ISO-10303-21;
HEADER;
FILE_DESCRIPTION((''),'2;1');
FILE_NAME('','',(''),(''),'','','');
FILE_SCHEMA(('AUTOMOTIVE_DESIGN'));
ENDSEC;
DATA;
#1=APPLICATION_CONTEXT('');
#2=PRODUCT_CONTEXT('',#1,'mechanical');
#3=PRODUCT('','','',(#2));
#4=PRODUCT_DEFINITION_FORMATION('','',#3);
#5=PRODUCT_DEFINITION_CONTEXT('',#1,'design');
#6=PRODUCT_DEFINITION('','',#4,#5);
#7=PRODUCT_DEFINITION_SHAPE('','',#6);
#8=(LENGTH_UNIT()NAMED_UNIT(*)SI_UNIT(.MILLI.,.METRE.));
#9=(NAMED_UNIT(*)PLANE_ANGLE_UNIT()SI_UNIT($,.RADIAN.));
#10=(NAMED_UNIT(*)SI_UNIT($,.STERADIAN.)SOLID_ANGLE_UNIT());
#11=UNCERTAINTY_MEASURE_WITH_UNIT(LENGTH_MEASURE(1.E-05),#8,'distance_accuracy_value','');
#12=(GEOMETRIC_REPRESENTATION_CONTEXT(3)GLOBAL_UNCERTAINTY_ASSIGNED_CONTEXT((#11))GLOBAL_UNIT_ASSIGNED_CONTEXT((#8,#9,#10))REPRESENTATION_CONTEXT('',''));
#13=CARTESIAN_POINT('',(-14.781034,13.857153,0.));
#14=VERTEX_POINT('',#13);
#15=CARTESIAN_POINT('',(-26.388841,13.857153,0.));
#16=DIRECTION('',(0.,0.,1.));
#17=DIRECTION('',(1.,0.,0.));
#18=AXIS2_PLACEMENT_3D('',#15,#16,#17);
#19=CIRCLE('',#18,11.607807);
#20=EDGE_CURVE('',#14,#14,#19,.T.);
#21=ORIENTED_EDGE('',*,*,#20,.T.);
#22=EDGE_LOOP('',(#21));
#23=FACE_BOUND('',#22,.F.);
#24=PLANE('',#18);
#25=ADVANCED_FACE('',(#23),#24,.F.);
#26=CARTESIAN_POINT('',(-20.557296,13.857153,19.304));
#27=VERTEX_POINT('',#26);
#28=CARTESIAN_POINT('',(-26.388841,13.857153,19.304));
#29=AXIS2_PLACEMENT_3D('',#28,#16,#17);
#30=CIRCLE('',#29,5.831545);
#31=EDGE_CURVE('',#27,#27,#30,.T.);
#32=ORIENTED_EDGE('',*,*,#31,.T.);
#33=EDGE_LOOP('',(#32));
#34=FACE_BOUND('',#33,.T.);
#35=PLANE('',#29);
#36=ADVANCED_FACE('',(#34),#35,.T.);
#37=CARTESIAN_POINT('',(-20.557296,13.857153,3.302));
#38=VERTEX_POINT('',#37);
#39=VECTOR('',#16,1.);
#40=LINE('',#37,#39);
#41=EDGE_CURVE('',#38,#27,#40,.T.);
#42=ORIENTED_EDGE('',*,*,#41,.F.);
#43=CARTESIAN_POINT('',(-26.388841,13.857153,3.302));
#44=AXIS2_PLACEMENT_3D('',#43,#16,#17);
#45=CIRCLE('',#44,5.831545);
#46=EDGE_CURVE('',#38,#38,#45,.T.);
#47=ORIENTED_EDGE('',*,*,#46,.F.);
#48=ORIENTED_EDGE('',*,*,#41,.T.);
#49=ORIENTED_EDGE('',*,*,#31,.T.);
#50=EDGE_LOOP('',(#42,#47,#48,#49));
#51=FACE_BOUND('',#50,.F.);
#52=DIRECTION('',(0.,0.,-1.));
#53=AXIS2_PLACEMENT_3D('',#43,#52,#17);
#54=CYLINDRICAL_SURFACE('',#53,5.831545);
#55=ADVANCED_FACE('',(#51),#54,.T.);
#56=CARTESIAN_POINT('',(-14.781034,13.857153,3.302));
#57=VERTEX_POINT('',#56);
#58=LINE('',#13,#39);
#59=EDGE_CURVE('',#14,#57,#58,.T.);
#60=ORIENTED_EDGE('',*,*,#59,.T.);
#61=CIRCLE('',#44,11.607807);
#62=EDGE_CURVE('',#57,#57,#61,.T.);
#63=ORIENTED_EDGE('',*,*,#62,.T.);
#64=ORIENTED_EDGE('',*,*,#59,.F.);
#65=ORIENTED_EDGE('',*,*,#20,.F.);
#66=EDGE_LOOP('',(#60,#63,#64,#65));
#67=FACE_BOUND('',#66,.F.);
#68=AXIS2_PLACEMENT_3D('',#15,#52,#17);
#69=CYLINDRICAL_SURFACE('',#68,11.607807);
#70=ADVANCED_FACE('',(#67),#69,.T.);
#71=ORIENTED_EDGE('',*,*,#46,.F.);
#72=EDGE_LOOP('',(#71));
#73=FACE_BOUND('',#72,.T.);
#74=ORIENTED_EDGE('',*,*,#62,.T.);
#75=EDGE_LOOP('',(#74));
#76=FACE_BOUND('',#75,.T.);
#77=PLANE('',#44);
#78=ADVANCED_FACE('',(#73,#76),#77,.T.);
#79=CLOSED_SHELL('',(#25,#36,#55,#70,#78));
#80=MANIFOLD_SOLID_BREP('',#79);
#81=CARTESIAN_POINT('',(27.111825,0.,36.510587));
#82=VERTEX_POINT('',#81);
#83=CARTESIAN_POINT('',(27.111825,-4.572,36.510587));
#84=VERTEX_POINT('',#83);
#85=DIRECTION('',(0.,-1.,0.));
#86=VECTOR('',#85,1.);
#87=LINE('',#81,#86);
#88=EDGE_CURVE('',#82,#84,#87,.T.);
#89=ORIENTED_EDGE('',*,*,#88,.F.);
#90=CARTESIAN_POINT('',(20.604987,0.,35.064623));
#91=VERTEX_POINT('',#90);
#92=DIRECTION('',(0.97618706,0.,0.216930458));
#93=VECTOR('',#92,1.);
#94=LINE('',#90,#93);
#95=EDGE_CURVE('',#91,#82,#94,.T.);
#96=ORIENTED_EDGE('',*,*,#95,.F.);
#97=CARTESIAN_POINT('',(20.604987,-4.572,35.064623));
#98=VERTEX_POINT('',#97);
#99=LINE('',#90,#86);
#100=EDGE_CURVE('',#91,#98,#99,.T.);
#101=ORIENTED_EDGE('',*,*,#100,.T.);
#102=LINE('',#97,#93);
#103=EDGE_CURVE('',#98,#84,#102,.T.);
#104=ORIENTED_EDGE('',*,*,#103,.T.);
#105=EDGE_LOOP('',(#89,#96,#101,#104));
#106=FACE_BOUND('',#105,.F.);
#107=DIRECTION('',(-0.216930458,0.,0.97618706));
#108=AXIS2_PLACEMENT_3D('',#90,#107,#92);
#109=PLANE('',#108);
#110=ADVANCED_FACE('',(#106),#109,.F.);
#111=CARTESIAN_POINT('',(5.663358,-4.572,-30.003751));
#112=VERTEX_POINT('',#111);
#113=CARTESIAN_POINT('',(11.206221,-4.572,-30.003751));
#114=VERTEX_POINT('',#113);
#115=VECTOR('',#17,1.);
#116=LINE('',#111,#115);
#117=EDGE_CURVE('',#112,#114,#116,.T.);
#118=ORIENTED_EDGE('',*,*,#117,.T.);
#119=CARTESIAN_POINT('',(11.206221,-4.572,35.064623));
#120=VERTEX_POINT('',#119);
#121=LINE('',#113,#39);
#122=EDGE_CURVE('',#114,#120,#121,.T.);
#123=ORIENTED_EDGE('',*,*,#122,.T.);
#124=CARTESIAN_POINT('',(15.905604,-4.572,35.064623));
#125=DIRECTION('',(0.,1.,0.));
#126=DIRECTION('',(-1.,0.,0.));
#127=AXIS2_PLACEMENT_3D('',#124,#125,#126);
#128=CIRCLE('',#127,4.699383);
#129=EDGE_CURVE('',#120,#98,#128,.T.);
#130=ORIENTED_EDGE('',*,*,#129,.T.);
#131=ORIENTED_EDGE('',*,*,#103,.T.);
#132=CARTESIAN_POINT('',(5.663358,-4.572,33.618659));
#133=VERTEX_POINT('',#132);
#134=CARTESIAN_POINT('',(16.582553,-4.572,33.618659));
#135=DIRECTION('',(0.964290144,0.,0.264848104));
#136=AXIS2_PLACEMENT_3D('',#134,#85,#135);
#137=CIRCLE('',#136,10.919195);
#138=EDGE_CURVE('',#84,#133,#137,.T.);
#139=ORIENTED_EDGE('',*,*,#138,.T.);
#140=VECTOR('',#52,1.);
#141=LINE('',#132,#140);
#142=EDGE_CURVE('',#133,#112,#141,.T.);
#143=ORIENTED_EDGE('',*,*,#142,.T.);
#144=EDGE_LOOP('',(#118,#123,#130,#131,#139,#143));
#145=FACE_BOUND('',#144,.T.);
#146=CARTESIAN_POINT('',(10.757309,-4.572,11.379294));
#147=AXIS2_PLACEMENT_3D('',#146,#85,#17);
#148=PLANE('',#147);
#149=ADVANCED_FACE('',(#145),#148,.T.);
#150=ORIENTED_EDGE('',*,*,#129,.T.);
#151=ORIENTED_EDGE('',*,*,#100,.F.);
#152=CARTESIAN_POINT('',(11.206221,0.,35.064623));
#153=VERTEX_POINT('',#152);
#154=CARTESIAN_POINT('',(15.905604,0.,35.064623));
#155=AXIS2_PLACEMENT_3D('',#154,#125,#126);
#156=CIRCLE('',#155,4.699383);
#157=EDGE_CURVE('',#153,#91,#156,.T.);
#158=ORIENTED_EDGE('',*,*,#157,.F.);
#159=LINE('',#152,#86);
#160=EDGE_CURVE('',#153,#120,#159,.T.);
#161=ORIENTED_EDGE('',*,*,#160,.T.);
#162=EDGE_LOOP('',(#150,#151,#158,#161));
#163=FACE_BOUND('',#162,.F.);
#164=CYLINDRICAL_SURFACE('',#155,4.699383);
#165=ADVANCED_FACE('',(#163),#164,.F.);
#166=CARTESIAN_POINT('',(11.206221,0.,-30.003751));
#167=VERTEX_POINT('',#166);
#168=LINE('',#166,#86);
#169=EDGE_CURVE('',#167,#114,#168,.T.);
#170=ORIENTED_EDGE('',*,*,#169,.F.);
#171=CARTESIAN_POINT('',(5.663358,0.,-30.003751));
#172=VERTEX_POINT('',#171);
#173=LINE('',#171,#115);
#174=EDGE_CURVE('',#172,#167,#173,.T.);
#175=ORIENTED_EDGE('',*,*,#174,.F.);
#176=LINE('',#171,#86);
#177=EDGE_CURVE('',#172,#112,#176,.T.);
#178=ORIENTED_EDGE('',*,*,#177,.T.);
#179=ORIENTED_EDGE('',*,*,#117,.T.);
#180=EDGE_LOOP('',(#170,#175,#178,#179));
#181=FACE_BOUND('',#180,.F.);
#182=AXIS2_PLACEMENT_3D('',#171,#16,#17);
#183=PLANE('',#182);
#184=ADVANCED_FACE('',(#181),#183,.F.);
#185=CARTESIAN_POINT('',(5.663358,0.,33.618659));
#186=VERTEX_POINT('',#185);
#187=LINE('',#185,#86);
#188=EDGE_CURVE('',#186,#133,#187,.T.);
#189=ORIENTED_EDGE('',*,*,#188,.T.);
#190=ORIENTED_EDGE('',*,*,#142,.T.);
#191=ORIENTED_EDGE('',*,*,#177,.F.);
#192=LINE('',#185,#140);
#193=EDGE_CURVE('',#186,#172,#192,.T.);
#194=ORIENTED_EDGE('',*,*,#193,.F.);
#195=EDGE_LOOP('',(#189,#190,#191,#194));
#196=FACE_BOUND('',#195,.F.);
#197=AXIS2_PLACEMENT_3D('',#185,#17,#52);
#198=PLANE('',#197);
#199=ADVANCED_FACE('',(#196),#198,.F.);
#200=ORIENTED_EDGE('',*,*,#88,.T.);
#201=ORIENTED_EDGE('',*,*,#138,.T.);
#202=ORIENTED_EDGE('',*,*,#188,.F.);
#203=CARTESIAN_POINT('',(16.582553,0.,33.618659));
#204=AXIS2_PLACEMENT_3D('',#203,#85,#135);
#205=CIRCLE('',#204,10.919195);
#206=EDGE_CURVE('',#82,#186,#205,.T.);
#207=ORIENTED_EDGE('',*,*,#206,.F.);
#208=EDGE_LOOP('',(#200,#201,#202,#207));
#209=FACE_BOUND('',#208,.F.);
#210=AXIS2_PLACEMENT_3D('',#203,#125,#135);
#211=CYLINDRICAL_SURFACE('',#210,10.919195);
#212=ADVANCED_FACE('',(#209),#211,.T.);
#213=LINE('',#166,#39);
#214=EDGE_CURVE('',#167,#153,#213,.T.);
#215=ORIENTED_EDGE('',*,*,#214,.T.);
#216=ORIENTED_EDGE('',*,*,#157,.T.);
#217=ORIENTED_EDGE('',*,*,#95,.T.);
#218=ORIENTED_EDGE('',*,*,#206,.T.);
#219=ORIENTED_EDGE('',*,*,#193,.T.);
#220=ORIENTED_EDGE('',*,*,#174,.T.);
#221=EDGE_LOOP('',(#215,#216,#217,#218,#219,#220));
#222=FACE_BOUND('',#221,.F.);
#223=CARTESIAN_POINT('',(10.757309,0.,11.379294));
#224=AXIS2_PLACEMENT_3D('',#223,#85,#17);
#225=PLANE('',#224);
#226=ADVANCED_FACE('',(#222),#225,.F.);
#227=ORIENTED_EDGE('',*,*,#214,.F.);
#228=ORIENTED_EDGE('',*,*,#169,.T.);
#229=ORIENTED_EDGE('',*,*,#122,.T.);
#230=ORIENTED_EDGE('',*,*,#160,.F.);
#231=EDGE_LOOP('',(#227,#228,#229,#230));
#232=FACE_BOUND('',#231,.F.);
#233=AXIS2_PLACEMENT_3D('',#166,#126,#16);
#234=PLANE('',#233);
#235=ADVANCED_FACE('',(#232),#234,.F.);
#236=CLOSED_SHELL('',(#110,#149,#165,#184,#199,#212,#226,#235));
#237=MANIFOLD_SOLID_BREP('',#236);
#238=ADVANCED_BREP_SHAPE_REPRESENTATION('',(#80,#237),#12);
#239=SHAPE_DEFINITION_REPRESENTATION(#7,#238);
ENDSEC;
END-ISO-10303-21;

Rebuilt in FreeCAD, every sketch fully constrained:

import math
import FreeCAD as App
import Part
import Sketcher

V = App.Vector
Q = App.Units.Quantity

doc = App.newDocument("Part")
body = doc.addObject("PartDesign::Body", "Body")

# Sketch on XZ plane
sketch1 = body.newObject("Sketcher::SketchObject", "Sketch")
sketch1.AttachmentSupport = (doc.getObject("XZ_Plane"), [""])
sketch1.MapMode = "FlatFace"
sketch1.addGeometry([
    Part.LineSegment(V(5.7, -30, 0), V(11.2, -30, 0)),  # 0
    Part.LineSegment(V(11.2, -30, 0), V(11.2, 35.1, 0)),  # 1
    Part.ArcOfCircle(Part.Circle(V(15.9, 35.1, 0), V(0, 0, 1), 4.7), math.radians(0), math.radians(180)),  # 2
    Part.LineSegment(V(20.6, 35.1, 0), V(27.1, 36.5, 0)),  # 3
    Part.ArcOfCircle(Part.Circle(V(16.6, 33.6, 0), V(0, 0, 1), 10.9), math.radians(15), math.radians(180)),  # 4
    Part.LineSegment(V(5.7, 33.6, 0), V(5.7, -30, 0)),  # 5
], False)
sketch1.addConstraint([
    Sketcher.Constraint("Coincident", 0, 2, 1, 1),
    Sketcher.Constraint("Tangent", 1, 2, 2, 2),
    Sketcher.Constraint("Coincident", 2, 1, 3, 1),
    Sketcher.Constraint("Coincident", 3, 2, 4, 1),
    Sketcher.Constraint("Tangent", 4, 2, 5, 1),
    Sketcher.Constraint("Coincident", 5, 2, 0, 1),
    Sketcher.Constraint("Horizontal", 0),
    Sketcher.Constraint("Vertical", 1),
    Sketcher.Constraint("Vertical", 5),
    Sketcher.Constraint("Horizontal", 1, 2, 2, 1),
    Sketcher.Constraint("Radius", 2, Q("4.699383 mm")),
    Sketcher.Constraint("Radius", 4, Q("10.919195 mm")),
    Sketcher.Constraint("DistanceY", 5, 2, 5, 1, Q("63.62241 mm")),
    Sketcher.Constraint("DistanceX", 0, 1, 0, 2, Q("5.542863 mm")),
    Sketcher.Constraint("DistanceY", 1, 1, 1, 2, Q("65.068374 mm")),
    Sketcher.Constraint("DistanceY", -1, 1, 4, 3, Q("33.618659 mm")),
    Sketcher.Constraint("DistanceX", -1, 1, 0, 2, Q("11.206221 mm")),
    Sketcher.Constraint("DistanceY", 4, 3, 3, 2, Q("2.891928 mm")),
])
pad1 = body.newObject("PartDesign::Pad", "Pad")
pad1.Profile = sketch1
pad1.Length = Q("0.18 in")
body2 = doc.addObject("PartDesign::Body", "Body001")

# Sketch on XY plane
sketch2 = body2.newObject("Sketcher::SketchObject", "Sketch001")
sketch2.AttachmentSupport = (doc.getObject("XY_Plane001"), [""])
sketch2.MapMode = "FlatFace"
sketch2.addGeometry(Part.Circle(V(-26, 14, 0), V(0, 0, 1), 12), False)
sketch2.addConstraint([
    Sketcher.Constraint("Diameter", 0, Q("23.215614 mm")),
    Sketcher.Constraint("DistanceX", 0, 3, -1, 1, Q("26.388841 mm")),
    Sketcher.Constraint("DistanceY", -1, 1, 0, 3, Q("13.857153 mm")),
])
pad2 = body2.newObject("PartDesign::Pad", "Pad001")
pad2.Profile = sketch2
pad2.Length = Q("0.13 in")

# Sketch on XY plane
sketch3 = body2.newObject("Sketcher::SketchObject", "Sketch002")
sketch3.AttachmentSupport = (doc.getObject("XY_Plane001"), [""])
sketch3.MapMode = "FlatFace"
sketch3.AttachmentOffset = App.Placement(V(0, 0, 0.13 * 25.4), App.Rotation())
sketch3.addGeometry(Part.Circle(V(-26, 14, 0), V(0, 0, 1), 6), False)
sketch3.addConstraint([
    Sketcher.Constraint("Diameter", 0, Q("11.66309 mm")),
    Sketcher.Constraint("DistanceX", 0, 3, -1, 1, Q("26.388841 mm")),
    Sketcher.Constraint("DistanceY", -1, 1, 0, 3, Q("13.857153 mm")),
])
pad3 = body2.newObject("PartDesign::Pad", "Pad002")
pad3.Profile = sketch3
pad3.Length = Q("0.63 in")

doc.recompute()
